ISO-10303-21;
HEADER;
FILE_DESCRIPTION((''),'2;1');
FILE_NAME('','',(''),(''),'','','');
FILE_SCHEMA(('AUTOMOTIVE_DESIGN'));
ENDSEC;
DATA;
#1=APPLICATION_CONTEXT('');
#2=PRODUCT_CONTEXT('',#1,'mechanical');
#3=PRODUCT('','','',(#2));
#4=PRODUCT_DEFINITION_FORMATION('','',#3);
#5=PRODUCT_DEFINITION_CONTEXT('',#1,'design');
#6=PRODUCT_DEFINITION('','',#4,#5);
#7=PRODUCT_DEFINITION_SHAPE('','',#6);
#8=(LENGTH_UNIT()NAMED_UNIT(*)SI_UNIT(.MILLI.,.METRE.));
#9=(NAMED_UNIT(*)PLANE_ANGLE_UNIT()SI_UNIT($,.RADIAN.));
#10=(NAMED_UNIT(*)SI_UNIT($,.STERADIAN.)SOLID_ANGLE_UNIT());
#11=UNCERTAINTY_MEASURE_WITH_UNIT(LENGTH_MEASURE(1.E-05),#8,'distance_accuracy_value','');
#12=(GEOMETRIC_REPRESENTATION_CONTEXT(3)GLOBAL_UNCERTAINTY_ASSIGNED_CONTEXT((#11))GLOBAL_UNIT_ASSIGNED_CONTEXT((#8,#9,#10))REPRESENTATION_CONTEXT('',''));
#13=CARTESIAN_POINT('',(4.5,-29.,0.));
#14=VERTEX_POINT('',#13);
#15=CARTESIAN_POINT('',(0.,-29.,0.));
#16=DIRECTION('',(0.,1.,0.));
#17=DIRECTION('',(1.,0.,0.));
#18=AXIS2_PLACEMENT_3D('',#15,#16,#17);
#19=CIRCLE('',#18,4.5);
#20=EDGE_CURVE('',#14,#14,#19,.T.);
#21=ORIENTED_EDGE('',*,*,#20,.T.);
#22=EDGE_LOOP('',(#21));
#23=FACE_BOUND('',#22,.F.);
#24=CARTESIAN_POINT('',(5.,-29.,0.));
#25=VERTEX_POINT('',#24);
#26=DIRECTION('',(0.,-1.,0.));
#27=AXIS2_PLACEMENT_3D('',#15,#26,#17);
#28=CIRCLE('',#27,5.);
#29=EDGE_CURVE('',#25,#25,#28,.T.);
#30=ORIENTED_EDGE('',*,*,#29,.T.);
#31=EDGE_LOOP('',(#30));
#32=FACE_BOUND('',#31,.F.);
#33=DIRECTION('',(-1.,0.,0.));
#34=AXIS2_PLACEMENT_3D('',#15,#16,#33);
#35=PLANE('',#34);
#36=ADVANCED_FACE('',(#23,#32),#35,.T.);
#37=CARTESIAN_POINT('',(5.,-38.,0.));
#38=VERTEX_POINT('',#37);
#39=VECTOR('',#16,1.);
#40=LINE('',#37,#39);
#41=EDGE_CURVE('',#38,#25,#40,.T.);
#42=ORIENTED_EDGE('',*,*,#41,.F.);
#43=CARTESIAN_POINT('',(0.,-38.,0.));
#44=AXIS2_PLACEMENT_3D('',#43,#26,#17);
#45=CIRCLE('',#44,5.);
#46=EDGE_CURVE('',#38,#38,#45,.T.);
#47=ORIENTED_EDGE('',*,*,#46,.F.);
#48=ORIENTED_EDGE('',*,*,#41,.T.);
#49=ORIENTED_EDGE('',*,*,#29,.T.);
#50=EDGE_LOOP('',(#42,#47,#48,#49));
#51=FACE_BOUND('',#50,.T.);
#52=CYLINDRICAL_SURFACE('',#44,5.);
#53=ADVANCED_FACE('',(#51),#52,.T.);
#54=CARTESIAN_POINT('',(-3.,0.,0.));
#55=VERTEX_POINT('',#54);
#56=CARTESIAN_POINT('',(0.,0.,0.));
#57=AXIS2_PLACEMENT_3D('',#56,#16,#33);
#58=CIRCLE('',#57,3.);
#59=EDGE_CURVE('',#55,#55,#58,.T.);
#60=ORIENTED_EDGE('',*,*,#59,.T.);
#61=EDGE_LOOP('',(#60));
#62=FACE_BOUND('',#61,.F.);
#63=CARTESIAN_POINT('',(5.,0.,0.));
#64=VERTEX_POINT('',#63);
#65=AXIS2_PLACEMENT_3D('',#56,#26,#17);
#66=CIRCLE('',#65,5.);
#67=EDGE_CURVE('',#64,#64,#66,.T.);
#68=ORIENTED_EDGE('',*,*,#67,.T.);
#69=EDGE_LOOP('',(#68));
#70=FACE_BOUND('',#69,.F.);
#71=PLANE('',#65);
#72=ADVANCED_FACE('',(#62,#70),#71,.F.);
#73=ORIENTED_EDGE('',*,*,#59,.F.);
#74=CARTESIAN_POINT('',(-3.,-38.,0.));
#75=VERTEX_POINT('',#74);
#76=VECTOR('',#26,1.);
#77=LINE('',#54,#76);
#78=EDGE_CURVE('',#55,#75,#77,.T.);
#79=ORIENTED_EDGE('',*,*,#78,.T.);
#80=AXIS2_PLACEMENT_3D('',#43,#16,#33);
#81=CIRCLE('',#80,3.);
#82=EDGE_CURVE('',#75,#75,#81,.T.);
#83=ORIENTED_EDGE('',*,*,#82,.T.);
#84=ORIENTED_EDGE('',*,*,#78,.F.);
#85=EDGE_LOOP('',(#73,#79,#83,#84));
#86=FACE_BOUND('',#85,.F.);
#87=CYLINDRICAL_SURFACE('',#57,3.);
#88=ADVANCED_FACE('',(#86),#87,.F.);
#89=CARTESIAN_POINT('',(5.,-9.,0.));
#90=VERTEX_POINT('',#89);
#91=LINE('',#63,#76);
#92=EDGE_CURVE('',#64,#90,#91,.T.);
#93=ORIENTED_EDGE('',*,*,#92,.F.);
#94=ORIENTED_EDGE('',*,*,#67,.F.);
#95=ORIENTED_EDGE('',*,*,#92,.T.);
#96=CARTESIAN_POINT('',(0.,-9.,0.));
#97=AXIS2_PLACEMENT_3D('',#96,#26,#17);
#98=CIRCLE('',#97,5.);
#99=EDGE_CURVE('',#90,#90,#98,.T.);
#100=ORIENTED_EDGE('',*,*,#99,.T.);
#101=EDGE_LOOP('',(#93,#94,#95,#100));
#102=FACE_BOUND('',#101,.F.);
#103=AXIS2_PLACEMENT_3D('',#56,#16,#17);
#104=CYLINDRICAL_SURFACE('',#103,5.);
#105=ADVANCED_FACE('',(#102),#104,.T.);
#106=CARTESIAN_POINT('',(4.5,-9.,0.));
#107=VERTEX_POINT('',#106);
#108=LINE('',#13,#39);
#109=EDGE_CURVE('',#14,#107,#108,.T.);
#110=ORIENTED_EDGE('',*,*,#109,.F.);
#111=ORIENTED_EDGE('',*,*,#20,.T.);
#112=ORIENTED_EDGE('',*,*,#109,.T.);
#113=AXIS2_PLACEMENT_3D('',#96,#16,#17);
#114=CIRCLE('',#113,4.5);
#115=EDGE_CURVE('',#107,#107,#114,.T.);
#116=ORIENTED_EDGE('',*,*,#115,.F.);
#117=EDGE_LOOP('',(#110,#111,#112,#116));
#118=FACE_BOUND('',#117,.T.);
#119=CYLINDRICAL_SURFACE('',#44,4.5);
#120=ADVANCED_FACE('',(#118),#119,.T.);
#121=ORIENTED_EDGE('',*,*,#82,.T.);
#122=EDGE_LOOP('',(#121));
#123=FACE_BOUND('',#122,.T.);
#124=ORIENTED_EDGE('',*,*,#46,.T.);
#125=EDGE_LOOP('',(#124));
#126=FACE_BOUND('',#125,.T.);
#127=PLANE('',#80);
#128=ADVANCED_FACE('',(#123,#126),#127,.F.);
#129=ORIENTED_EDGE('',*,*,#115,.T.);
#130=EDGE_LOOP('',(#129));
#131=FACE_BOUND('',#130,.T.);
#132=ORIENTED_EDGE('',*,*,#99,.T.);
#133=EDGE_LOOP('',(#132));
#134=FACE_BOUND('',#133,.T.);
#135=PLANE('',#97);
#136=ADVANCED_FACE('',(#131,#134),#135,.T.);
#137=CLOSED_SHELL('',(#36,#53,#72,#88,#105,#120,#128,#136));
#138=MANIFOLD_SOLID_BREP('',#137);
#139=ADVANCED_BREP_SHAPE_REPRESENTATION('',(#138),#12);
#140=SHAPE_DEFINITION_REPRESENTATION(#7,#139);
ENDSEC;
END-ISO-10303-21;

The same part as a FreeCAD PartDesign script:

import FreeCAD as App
import Part
import Sketcher
from FreeCAD import Vector

doc = App.newDocument("Part")
body = doc.addObject("PartDesign::Body", "Body")

# Sketch on XZ plane
sketch1 = body.newObject("Sketcher::SketchObject", "Sketch")
sketch1.AttachmentSupport = (doc.getObject("XZ_Plane"), [""])
sketch1.MapMode = "FlatFace"
sketch1.addGeometry(Part.Circle(Vector(0, 0, 0), Vector(0, 0, 1), 5), False)
sketch1.addConstraint([
    Sketcher.Constraint("Coincident", 0, 3, -1, 1),
    Sketcher.Constraint("Diameter", 0, 10.0),
])
pad1 = body.newObject("PartDesign::Pad", "Pad")
pad1.Profile = sketch1
pad1.Length = 9

# Sketch on XZ plane
sketch2 = body.newObject("Sketcher::SketchObject", "Sketch001")
sketch2.AttachmentSupport = (doc.getObject("XZ_Plane"), [""])
sketch2.MapMode = "FlatFace"
sketch2.addGeometry(Part.Circle(Vector(0, 0, 0), Vector(0, 0, 1), 4.5), False)
sketch2.addConstraint([
    Sketcher.Constraint("Coincident", 0, 3, -1, 1),
    Sketcher.Constraint("Diameter", 0, 9.0),
])
pad2 = body.newObject("PartDesign::Pad", "Pad001")
pad2.Profile = sketch2
pad2.Length = 19
body2 = doc.addObject("PartDesign::Body", "Body001")
doc.recompute()

body2.BaseFeature = body
doc.recompute()

mirroring = doc.addObject("Part::Mirroring", "Mirroring")
mirroring.Source = body
mirroring.Base = Vector(0, -19, 0)
mirroring.Normal = Vector(0, -1, 0)
body3 = doc.addObject("PartDesign::Body", "Body002")
body3.BaseFeature = mirroring
boolean = body2.newObject("PartDesign::Boolean", "Boolean")
boolean.Type = "Fuse"
boolean.addObjects([body3])
doc.recompute()

# Sketch on XZ plane
sketch3 = body2.newObject("Sketcher::SketchObject", "Sketch002")
sketch3.AttachmentSupport = (doc.getObject("XZ_Plane001"), [""])
sketch3.MapMode = "FlatFace"
sketch3.addGeometry(Part.Circle(Vector(0, 0, 0), Vector(0, 0, 1), 3), False)
sketch3.addConstraint([
    Sketcher.Constraint("Coincident", 0, 3, -1, 1),
    Sketcher.Constraint("Diameter", 0, 6.0),
])
pocket1 = body2.newObject("PartDesign::Pocket", "Pocket")
pocket1.Profile = sketch3
pocket1.Length = 38
pocket1.Reversed = True
mirroring.Visibility = False

doc.recompute()
